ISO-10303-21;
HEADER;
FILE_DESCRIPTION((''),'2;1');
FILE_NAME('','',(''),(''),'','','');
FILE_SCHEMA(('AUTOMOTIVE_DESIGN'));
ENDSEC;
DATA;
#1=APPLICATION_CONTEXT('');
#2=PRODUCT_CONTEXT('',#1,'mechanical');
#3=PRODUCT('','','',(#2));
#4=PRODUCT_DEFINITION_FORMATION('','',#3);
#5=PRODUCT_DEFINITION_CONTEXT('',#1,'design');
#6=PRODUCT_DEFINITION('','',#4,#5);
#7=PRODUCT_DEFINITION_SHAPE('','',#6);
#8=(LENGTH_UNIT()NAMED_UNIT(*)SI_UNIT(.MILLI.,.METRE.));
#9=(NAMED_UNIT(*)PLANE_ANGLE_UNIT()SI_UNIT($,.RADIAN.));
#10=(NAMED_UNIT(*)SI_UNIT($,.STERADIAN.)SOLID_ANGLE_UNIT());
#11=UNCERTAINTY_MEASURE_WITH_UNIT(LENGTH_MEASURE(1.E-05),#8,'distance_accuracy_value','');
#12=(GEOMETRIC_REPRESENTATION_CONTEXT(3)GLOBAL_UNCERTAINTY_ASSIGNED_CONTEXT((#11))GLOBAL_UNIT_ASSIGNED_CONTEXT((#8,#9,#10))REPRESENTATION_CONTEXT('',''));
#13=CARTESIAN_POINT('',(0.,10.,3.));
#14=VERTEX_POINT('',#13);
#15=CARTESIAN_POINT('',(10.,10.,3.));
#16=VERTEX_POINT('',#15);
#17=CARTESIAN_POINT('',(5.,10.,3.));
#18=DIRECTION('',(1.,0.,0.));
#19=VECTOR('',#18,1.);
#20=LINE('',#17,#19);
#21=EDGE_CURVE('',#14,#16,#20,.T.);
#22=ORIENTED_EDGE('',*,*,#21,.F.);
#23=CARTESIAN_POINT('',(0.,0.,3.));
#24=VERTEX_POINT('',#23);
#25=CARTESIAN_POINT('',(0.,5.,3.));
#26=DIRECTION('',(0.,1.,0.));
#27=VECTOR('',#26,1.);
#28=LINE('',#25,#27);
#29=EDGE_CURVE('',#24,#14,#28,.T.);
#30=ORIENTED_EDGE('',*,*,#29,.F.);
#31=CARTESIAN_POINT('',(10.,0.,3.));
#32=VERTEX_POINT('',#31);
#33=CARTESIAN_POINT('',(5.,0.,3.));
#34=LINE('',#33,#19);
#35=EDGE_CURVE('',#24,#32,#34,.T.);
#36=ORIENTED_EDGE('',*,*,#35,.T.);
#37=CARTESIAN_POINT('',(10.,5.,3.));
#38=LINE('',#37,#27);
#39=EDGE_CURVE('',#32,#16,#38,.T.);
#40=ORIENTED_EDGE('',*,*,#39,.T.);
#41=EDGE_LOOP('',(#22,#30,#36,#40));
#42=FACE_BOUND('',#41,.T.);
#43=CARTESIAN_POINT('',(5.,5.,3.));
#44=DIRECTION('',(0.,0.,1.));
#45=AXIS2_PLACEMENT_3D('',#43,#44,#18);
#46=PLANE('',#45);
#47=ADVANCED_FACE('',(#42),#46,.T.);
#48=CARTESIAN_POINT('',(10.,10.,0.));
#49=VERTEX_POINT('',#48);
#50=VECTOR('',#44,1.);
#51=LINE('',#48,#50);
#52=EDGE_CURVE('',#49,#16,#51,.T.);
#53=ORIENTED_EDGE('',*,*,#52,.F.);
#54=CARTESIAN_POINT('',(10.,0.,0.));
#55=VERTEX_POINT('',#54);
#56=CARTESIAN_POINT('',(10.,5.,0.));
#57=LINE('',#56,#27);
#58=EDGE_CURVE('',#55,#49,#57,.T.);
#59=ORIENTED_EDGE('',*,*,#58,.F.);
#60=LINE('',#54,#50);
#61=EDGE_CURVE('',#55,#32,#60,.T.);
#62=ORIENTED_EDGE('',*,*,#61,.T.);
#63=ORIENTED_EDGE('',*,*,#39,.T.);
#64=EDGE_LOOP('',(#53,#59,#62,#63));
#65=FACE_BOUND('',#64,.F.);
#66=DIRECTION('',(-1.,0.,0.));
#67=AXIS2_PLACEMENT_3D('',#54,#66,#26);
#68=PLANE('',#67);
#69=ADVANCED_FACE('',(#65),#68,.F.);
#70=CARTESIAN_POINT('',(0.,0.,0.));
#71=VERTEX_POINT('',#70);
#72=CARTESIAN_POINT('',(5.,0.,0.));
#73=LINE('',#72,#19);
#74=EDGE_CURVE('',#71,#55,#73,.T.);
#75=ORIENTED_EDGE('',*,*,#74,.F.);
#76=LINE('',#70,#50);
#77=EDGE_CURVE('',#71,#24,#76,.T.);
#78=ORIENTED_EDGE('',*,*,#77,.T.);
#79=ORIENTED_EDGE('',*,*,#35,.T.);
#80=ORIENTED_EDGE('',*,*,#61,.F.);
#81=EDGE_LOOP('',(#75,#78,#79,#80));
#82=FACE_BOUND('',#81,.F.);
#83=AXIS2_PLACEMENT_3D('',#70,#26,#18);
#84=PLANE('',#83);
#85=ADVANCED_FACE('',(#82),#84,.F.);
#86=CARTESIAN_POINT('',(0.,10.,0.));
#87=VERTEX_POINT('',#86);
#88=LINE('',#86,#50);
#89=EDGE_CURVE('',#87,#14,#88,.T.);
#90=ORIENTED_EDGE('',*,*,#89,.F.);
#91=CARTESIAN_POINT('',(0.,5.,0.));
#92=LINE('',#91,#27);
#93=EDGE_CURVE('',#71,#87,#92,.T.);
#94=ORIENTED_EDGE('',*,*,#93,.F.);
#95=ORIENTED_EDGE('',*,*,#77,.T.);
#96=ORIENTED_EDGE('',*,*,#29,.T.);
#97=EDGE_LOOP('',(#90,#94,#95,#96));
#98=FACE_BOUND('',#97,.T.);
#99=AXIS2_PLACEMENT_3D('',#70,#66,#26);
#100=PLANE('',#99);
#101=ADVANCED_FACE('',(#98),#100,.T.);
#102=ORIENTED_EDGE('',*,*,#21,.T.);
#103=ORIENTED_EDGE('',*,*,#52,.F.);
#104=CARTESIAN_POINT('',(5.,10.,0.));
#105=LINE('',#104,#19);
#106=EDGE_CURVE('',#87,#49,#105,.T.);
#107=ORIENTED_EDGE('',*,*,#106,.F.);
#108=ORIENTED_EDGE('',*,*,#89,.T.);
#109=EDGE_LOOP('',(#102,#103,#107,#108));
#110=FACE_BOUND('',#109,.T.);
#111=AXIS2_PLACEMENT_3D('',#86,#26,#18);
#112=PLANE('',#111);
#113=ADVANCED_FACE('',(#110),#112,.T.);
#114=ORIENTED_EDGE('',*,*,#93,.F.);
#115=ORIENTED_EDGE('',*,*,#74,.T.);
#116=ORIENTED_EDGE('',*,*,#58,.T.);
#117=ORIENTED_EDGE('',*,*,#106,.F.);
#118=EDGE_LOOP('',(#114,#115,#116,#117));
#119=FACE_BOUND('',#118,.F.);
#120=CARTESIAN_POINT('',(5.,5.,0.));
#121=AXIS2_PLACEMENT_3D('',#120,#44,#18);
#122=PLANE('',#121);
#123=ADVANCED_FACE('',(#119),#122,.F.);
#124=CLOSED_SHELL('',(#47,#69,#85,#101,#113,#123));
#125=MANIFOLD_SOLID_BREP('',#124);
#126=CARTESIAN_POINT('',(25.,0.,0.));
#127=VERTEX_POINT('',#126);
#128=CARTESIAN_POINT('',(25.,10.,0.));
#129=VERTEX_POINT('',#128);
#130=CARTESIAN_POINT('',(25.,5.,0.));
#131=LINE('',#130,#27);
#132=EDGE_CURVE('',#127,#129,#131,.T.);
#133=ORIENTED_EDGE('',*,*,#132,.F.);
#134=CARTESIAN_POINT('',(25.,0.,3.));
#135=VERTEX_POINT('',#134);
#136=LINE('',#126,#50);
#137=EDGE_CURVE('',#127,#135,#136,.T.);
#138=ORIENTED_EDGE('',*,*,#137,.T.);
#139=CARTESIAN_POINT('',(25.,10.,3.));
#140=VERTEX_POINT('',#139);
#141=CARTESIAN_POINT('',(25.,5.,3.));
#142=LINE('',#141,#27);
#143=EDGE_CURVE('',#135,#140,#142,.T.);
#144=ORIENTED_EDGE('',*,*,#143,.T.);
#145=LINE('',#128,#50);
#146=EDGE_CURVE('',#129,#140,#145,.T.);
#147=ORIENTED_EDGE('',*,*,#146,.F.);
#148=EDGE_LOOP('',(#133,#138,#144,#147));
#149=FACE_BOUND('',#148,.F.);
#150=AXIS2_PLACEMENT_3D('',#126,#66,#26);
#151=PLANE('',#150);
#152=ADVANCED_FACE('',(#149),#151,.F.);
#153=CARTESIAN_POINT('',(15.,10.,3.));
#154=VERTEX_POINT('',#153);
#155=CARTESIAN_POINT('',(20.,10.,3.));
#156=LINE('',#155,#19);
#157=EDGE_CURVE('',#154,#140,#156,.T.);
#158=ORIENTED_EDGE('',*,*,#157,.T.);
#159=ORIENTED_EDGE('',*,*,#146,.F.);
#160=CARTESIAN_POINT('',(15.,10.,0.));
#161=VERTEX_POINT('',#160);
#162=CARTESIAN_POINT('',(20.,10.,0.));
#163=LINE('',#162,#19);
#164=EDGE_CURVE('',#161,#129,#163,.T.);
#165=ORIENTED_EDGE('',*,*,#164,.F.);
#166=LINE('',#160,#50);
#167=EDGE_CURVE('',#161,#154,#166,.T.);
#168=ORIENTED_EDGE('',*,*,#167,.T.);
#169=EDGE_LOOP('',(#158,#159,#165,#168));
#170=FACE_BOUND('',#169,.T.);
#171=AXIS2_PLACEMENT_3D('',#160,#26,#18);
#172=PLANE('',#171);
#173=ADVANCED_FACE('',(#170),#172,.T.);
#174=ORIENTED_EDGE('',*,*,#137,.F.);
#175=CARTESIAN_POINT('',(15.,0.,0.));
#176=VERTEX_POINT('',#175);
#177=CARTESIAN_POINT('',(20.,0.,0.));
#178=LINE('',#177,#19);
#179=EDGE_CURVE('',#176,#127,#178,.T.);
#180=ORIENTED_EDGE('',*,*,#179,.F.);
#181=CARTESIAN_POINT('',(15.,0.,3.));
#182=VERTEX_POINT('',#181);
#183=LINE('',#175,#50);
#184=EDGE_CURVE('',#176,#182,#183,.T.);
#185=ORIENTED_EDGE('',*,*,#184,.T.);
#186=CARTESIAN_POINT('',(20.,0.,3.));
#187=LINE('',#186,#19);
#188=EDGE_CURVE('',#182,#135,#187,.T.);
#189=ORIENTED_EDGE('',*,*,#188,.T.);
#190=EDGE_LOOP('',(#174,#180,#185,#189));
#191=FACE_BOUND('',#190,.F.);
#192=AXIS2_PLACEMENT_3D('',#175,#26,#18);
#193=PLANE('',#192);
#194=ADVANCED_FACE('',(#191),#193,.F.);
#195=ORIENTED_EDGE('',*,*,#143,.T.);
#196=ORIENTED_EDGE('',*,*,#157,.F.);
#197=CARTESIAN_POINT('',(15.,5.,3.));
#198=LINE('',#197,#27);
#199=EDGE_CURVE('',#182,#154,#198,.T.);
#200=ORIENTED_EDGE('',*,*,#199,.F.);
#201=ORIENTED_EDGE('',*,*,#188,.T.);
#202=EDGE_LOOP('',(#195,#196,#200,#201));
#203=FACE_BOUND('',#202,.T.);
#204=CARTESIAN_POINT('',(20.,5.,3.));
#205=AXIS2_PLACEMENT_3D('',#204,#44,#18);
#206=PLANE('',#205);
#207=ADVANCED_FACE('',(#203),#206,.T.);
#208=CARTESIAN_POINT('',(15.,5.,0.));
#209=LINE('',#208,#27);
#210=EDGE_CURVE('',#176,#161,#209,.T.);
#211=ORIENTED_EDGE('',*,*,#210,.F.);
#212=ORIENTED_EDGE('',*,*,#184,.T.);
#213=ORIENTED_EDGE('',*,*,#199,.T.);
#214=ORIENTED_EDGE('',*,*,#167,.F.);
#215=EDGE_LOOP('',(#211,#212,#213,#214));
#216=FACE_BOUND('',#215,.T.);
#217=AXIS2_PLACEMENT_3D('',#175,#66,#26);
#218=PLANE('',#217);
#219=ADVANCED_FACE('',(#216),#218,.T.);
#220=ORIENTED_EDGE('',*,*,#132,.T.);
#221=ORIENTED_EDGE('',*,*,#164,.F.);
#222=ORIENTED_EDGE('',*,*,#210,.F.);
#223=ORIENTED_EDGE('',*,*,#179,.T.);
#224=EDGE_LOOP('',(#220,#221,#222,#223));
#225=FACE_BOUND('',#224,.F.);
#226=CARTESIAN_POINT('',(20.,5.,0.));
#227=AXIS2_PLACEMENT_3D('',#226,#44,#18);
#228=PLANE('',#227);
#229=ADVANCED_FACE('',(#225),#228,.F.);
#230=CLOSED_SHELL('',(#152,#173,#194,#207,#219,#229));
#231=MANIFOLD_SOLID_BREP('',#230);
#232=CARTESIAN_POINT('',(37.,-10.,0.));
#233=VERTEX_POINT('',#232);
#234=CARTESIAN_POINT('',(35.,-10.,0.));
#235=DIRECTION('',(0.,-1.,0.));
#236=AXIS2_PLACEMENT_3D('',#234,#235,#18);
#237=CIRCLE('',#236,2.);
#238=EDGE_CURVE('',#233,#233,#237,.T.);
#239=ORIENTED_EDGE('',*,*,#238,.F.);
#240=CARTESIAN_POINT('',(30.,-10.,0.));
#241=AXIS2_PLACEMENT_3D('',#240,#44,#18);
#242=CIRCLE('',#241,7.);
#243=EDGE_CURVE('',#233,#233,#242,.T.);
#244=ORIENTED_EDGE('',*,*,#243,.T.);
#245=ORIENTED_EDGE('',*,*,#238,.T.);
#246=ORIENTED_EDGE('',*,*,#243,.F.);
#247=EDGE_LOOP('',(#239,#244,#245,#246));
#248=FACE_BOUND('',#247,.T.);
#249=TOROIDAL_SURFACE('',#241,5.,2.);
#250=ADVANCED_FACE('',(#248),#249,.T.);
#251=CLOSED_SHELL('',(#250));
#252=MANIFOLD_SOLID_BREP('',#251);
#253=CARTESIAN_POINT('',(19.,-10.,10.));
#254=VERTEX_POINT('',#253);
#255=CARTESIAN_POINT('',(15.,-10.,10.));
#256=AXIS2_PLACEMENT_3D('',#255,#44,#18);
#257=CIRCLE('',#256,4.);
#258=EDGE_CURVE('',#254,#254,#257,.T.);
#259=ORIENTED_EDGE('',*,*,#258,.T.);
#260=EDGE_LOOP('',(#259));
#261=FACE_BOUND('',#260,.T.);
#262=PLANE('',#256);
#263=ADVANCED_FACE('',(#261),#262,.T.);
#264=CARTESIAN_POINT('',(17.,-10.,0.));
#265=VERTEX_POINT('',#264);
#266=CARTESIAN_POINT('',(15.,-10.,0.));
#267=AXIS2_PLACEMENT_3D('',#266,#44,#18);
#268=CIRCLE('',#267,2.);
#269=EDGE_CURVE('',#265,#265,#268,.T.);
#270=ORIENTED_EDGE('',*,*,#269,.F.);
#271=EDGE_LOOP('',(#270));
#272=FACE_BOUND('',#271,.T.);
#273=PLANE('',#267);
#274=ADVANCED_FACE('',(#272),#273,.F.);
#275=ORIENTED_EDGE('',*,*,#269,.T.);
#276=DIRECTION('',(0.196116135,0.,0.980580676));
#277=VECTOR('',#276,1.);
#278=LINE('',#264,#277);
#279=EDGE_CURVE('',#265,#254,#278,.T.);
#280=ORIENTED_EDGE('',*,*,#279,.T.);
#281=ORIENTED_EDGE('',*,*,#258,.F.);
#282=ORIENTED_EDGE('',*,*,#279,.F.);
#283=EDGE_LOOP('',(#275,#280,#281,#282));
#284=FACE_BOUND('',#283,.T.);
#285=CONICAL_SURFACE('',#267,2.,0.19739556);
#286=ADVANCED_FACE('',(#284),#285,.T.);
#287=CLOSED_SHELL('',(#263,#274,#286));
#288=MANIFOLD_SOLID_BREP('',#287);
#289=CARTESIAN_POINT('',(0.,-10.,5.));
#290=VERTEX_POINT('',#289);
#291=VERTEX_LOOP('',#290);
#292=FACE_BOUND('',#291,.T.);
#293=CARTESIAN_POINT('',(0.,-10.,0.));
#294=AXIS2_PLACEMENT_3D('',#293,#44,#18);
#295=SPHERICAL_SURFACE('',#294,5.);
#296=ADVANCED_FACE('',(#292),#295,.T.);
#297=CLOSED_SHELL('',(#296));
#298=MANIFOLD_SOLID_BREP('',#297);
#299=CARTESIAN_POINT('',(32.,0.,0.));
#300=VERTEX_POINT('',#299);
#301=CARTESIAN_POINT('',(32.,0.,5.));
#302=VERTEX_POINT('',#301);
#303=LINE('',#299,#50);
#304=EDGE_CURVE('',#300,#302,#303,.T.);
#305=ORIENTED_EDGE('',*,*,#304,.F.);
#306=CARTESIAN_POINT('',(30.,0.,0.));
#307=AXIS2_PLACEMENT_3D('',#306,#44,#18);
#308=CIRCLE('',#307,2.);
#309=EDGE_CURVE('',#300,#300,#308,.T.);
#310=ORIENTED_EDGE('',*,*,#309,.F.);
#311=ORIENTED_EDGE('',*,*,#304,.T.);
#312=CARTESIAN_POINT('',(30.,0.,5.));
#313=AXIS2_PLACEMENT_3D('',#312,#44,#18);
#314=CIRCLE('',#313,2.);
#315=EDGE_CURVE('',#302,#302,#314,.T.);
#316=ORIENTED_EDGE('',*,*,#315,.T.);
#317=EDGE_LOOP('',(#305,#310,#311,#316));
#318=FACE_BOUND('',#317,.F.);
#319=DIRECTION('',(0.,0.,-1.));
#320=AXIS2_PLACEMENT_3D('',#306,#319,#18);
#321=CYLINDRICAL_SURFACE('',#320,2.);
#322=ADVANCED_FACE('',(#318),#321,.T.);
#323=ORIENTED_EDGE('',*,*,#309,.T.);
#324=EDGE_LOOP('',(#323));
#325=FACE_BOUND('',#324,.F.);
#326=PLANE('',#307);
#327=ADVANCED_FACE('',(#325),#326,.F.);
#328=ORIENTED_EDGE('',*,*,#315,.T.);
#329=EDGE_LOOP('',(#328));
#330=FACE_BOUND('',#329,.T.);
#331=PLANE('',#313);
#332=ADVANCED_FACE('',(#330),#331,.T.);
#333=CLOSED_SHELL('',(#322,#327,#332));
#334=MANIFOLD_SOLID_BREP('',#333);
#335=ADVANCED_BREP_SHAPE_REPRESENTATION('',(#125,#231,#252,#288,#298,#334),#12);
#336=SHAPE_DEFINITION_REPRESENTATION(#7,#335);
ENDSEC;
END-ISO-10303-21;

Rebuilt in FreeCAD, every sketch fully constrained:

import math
import FreeCAD as App
import Part
import Sketcher
from FreeCAD import Vector
Q = App.Units.Quantity

doc = App.newDocument("Part")
body = doc.addObject("PartDesign::Body", "Body")

sketch1 = doc.addObject("Sketcher::SketchObject", "Sketch")
body.addObject(sketch1)
sketch1.AttachmentSupport = (doc.XY_Plane, [""])
sketch1.MapMode = "FlatFace"
sketch1.addGeometry([
    Part.LineSegment(Vector(15, 10, 0), Vector(15, 0, 0)),
    Part.LineSegment(Vector(15, 0, 0), Vector(25, 0, 0)),
    Part.LineSegment(Vector(25, 0, 0), Vector(25, 10, 0)),
    Part.LineSegment(Vector(25, 10, 0), Vector(15, 10, 0)),
], False)
sketch1.addConstraint([
    Sketcher.Constraint("Coincident", 0, 2, 1, 1),
    Sketcher.Constraint("Coincident", 1, 2, 2, 1),
    Sketcher.Constraint("Coincident", 2, 2, 3, 1),
    Sketcher.Constraint("Coincident", 3, 2, 0, 1),
    Sketcher.Constraint("Vertical", 0),
    Sketcher.Constraint("Horizontal", 1),
    Sketcher.Constraint("Vertical", 2),
    Sketcher.Constraint("Horizontal", 3),
    Sketcher.Constraint("PointOnObject", 0, 2, -1),
    Sketcher.Constraint("Equal", 3, 0),
    Sketcher.Constraint("DistanceX", 1, 1, 1, 2, Q("10 mm")),
    Sketcher.Constraint("DistanceX", -1, 1, 0, 2, Q("15 mm")),
])
pad1 = doc.addObject("PartDesign::Pad", "Pad")
body.addObject(pad1)
pad1.Profile = sketch1
pad1.Length = 3
body2 = doc.addObject("PartDesign::Body", "Body001")

sketch2 = doc.addObject("Sketcher::SketchObject", "Sketch001")
body2.addObject(sketch2)
sketch2.AttachmentSupport = (doc.getObject("XY_Plane001"), [""])
sketch2.MapMode = "FlatFace"
sketch2.addGeometry([
    Part.LineSegment(Vector(0, 10, 0), Vector(0, 0, 0)),
    Part.LineSegment(Vector(0, 0, 0), Vector(10, 0, 0)),
    Part.LineSegment(Vector(10, 0, 0), Vector(10, 10, 0)),
    Part.LineSegment(Vector(10, 10, 0), Vector(0, 10, 0)),
], False)
sketch2.addConstraint([
    Sketcher.Constraint("Coincident", 0, 2, 1, 1),
    Sketcher.Constraint("Coincident", 1, 2, 2, 1),
    Sketcher.Constraint("Coincident", 2, 2, 3, 1),
    Sketcher.Constraint("Coincident", 3, 2, 0, 1),
    Sketcher.Constraint("Vertical", 0),
    Sketcher.Constraint("Horizontal", 1),
    Sketcher.Constraint("Vertical", 2),
    Sketcher.Constraint("Horizontal", 3),
    Sketcher.Constraint("Coincident", 0, 2, -1, 1),
    Sketcher.Constraint("Equal", 3, 0),
    Sketcher.Constraint("DistanceX", 1, 1, 1, 2, Q("10 mm")),
])
pad2 = doc.addObject("PartDesign::Pad", "Pad001")
body2.addObject(pad2)
pad2.Profile = sketch2
pad2.Length = 3
body3 = doc.addObject("PartDesign::Body", "Body002")

sketch3 = doc.addObject("Sketcher::SketchObject", "Sketch002")
body3.addObject(sketch3)
sketch3.AttachmentSupport = (doc.getObject("XY_Plane002"), [""])
sketch3.MapMode = "FlatFace"
sketch3.addGeometry(Part.Circle(Vector(30, 0, 0), Vector(0, 0, 1), 2), False)
sketch3.addConstraint([
    Sketcher.Constraint("PointOnObject", 0, 3, -1),
    Sketcher.Constraint("Diameter", 0, Q("4 mm")),
    Sketcher.Constraint("DistanceX", -1, 1, 0, 3, Q("30 mm")),
])
pad3 = doc.addObject("PartDesign::Pad", "Pad002")
body3.addObject(pad3)
pad3.Profile = sketch3
pad3.Length = 5
body4 = doc.addObject("PartDesign::Body", "Body003")

sketch4 = doc.addObject("Sketcher::SketchObject", "Sketch003")
body4.addObject(sketch4)
sketch4.AttachmentSupport = (doc.getObject("XZ_Plane003"), [""])
sketch4.MapMode = "FlatFace"
sketch4.AttachmentOffset = App.Placement(Vector(0, 0, 10), App.Rotation())
sketch4.addGeometry([
    Part.ArcOfCircle(Part.Circle(Vector(0, 0, 0), Vector(0, 0, 1), 5), math.radians(-90), math.radians(90)),
    Part.LineSegment(Vector(0, 5, 0), Vector(0, -5, 0)),
], False)
sketch4.addConstraint([
    Sketcher.Constraint("Coincident", 0, 1, 1, 2),
    Sketcher.Constraint("Coincident", 1, 1, 0, 2),
    Sketcher.Constraint("Vertical", 1),
    Sketcher.Constraint("Coincident", 0, 3, -1, 1),
    Sketcher.Constraint("PointOnObject", 0, 1, -2),
    Sketcher.Constraint("Radius", 0, Q("5 mm")),
])
revolution = doc.addObject("PartDesign::Revolution", "Revolution")
body4.addObject(revolution)
revolution.Profile = sketch4
revolution.ReferenceAxis = (sketch4, ["V_Axis"])
revolution.Angle = 360
body5 = doc.addObject("PartDesign::Body", "Body004")

sketch5 = doc.addObject("Sketcher::SketchObject", "Sketch004")
body5.addObject(sketch5)
sketch5.AttachmentSupport = (doc.getObject("XZ_Plane004"), [""])
sketch5.MapMode = "FlatFace"
sketch5.AttachmentOffset = App.Placement(Vector(0, 0, 10), App.Rotation())
sketch5.addGeometry([
    Part.LineSegment(Vector(15, 0, 0), Vector(17, 0, 0)),
    Part.LineSegment(Vector(17, 0, 0), Vector(19, 10, 0)),
    Part.LineSegment(Vector(19, 10, 0), Vector(15, 10, 0)),
    Part.LineSegment(Vector(15, 10, 0), Vector(15, 0, 0)),
], False)
sketch5.addGeometry(Part.LineSegment(Vector(15, 0, 0), Vector(15, 10, 0)), True)
sketch5.addConstraint([
    Sketcher.Constraint("Coincident", 0, 2, 1, 1),
    Sketcher.Constraint("Coincident", 1, 2, 2, 1),
    Sketcher.Constraint("Coincident", 2, 2, 3, 1),
    Sketcher.Constraint("Coincident", 3, 2, 0, 1),
    Sketcher.Constraint("Horizontal", 0),
    Sketcher.Constraint("Horizontal", 2),
    Sketcher.Constraint("Vertical", 3),
    Sketcher.Constraint("Vertical", 4),
    Sketcher.Constraint("Coincident", 4, 1, 3, 2),
    Sketcher.Constraint("PointOnObject", 0, 2, -1),
    Sketcher.Constraint("Horizontal", 1, 2, 4, 2),
    Sketcher.Constraint("DistanceX", 0, 1, 0, 2, Q("2 mm")),
    Sketcher.Constraint("DistanceX", 2, 2, 2, 1, Q("4 mm")),
    Sketcher.Constraint("DistanceY", 3, 2, 3, 1, Q("10 mm")),
    Sketcher.Constraint("DistanceX", -1, 1, 0, 2, Q("17 mm")),
])
revolution2 = doc.addObject("PartDesign::Revolution", "Revolution001")
body5.addObject(revolution2)
revolution2.Profile = sketch5
revolution2.ReferenceAxis = (sketch5, ["Axis0"])
revolution2.Angle = 360
body6 = doc.addObject("PartDesign::Body", "Body005")

sketch6 = doc.addObject("Sketcher::SketchObject", "Sketch005")
body6.addObject(sketch6)
sketch6.AttachmentSupport = (doc.getObject("XZ_Plane005"), [""])
sketch6.MapMode = "FlatFace"
sketch6.AttachmentOffset = App.Placement(Vector(0, 0, 10), App.Rotation())
sketch6.addGeometry(Part.Circle(Vector(35, 0, 0), Vector(0, 0, 1), 2), False)
sketch6.addGeometry(Part.LineSegment(Vector(30, 0, 0), Vector(30, 10, 0)), True)
sketch6.addConstraint([
    Sketcher.Constraint("Vertical", 1),
    Sketcher.Constraint("PointOnObject", 0, 3, -1),
    Sketcher.Constraint("PointOnObject", 1, 1, -1),
    Sketcher.Constraint("Diameter", 0, Q("4 mm")),
    Sketcher.Constraint("DistanceY", 1, 1, 1, 2, Q("10 mm")),
    Sketcher.Constraint("DistanceX", -1, 1, 0, 3, Q("35 mm")),
    Sketcher.Constraint("DistanceX", -1, 1, 1, 1, Q("30 mm")),
])
revolution3 = doc.addObject("PartDesign::Revolution", "Revolution002")
body6.addObject(revolution3)
revolution3.Profile = sketch6
revolution3.ReferenceAxis = (sketch6, ["Axis0"])
revolution3.Angle = 360

doc.recompute()
